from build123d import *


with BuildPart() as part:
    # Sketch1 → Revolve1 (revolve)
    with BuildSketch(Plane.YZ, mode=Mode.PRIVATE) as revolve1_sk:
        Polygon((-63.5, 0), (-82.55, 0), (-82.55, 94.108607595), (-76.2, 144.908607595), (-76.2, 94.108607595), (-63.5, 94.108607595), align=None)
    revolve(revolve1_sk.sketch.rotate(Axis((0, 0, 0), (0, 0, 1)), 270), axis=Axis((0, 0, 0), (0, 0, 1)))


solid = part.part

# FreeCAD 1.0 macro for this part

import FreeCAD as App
import Part
import Sketcher
from FreeCAD import Vector
Q = App.Units.Quantity

doc = App.newDocument("Part")
body = doc.addObject("PartDesign::Body", "Body")

sketch1 = body.newObject("Sketcher::SketchObject", "Sketch")
sketch1.AttachmentSupport = (doc.getObject("YZ_Plane"), [""])
sketch1.MapMode = "FlatFace"
sketch1.addGeometry(Part.LineSegment(Vector(-83, 0, 0), Vector(-64, 0, 0)), False)
sketch1.addGeometry(Part.LineSegment(Vector(-64, 0, 0), Vector(-64, 94, 0)), False)
sketch1.addGeometry(Part.LineSegment(Vector(-64, 94, 0), Vector(-76, 94, 0)), False)
sketch1.addGeometry(Part.LineSegment(Vector(-76, 94, 0), Vector(-76, 145, 0)), False)
sketch1.addGeometry(Part.LineSegment(Vector(-76, 145, 0), Vector(-83, 94, 0)), False)
sketch1.addGeometry(Part.LineSegment(Vector(-83, 94, 0), Vector(-83, 0, 0)), False)
sketch1.addConstraint(Sketcher.Constraint("Coincident", 0, 2, 1, 1))
sketch1.addConstraint(Sketcher.Constraint("Coincident", 1, 2, 2, 1))
sketch1.addConstraint(Sketcher.Constraint("Coincident", 2, 2, 3, 1))
sketch1.addConstraint(Sketcher.Constraint("Coincident", 3, 2, 4, 1))
sketch1.addConstraint(Sketcher.Constraint("Coincident", 4, 2, 5, 1))
sketch1.addConstraint(Sketcher.Constraint("Coincident", 5, 2, 0, 1))
sketch1.addConstraint(Sketcher.Constraint("Horizontal", 0))
sketch1.addConstraint(Sketcher.Constraint("Vertical", 1))
sketch1.addConstraint(Sketcher.Constraint("Horizontal", 2))
sketch1.addConstraint(Sketcher.Constraint("Vertical", 3))
sketch1.addConstraint(Sketcher.Constraint("Vertical", 5))
sketch1.addConstraint(Sketcher.Constraint("PointOnObject", 0, 2, -1))
sketch1.addConstraint(Sketcher.Constraint("Horizontal", 2, 2, 4, 2))
sketch1.addConstraint(Sketcher.Constraint("DistanceY", 3, 1, 3, 2, Q("2 in")))
sketch1.addConstraint(Sketcher.Constraint("DistanceX", 2, 2, 2, 1, Q("0.5 in")))
sketch1.addConstraint(Sketcher.Constraint("DistanceX", 2, 2, -1, 1, Q("3 in")))
sketch1.addConstraint(Sketcher.Constraint("DistanceX", 0, 1, 0, 2, Q("0.75 in")))
sketch1.addConstraint(Sketcher.Constraint("DistanceY", 1, 1, 1, 2, 94.108608))
revolution = body.newObject("PartDesign::Revolution", "Revolution")
revolution.Profile = sketch1
revolution.ReferenceAxis = (sketch1, ["V_Axis"])
revolution.Angle = 360

doc.recompute()
